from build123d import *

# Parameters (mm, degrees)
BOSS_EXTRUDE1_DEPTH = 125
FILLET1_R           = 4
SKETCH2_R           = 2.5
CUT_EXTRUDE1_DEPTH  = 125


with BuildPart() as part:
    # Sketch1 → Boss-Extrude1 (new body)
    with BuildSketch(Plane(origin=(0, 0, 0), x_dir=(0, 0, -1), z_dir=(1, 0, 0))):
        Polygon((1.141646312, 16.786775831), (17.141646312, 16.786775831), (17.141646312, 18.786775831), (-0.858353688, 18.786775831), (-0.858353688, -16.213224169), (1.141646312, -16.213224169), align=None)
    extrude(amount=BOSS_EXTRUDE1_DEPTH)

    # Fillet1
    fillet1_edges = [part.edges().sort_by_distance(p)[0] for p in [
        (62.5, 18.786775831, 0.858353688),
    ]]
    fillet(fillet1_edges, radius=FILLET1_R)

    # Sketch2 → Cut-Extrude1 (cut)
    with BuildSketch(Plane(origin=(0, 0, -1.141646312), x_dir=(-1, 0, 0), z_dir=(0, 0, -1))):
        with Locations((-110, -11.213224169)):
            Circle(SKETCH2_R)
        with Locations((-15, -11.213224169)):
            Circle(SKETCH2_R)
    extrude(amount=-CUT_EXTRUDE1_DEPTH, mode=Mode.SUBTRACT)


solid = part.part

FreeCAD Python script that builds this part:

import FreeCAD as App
import Part
import Sketcher

V = App.Vector
Q = App.Units.Quantity


def edges_at(feature, points):
    """Names of the edges that pass closest to the given points."""
    edges = feature.Shape.Edges
    near = lambda p: min(range(len(edges)), key=lambda i: edges[i].distToShape(Part.Vertex(*p))[0])
    return sorted({f"Edge{near(p) + 1}" for p in points})

doc = App.newDocument("Part")
body = doc.addObject("PartDesign::Body", "Body")

sketch1 = body.newObject("Sketcher::SketchObject", "Sketch")
sketch1.AttachmentSupport = (doc.getObject("YZ_Plane"), [""])
sketch1.MapMode = "FlatFace"
sketch1.addGeometry(Part.LineSegment(V(16.786776, -1.141646, 0), V(16.786776, -17.141646, 0)), False)
sketch1.addGeometry(Part.LineSegment(V(16.786776, -17.141646, 0), V(18.786776, -17.141646, 0)), False)
sketch1.addGeometry(Part.LineSegment(V(18.786776, -17.141646, 0), V(18.786776, 0.858354, 0)), False)
sketch1.addGeometry(Part.LineSegment(V(18.786776, 0.858354, 0), V(-16.213224, 0.858354, 0)), False)
sketch1.addGeometry(Part.LineSegment(V(-16.213224, 0.858354, 0), V(-16.213224, -1.141646, 0)), False)
sketch1.addGeometry(Part.LineSegment(V(-16.213224, -1.141646, 0), V(16.786776, -1.141646, 0)), False)
sketch1.addConstraint(Sketcher.Constraint("Coincident", 0, 2, 1, 1))
sketch1.addConstraint(Sketcher.Constraint("Coincident", 1, 2, 2, 1))
sketch1.addConstraint(Sketcher.Constraint("Coincident", 2, 2, 3, 1))
sketch1.addConstraint(Sketcher.Constraint("Coincident", 3, 2, 4, 1))
sketch1.addConstraint(Sketcher.Constraint("Coincident", 4, 2, 5, 1))
sketch1.addConstraint(Sketcher.Constraint("Coincident", 5, 2, 0, 1))
sketch1.addConstraint(Sketcher.Constraint("Vertical", 0))
sketch1.addConstraint(Sketcher.Constraint("Horizontal", 1))
sketch1.addConstraint(Sketcher.Constraint("Vertical", 2))
sketch1.addConstraint(Sketcher.Constraint("Horizontal", 3))
sketch1.addConstraint(Sketcher.Constraint("Vertical", 4))
sketch1.addConstraint(Sketcher.Constraint("Horizontal", 5))
sketch1.addConstraint(Sketcher.Constraint("Equal", 1, 4))
sketch1.addConstraint(Sketcher.Constraint("DistanceX", 1, 1, 1, 2, Q("2 mm")))
sketch1.addConstraint(Sketcher.Constraint("DistanceX", 3, 2, 3, 1, Q("35 mm")))
sketch1.addConstraint(Sketcher.Constraint("DistanceY", 0, 2, 0, 1, Q("16 mm")))
sketch1.addConstraint(Sketcher.Constraint("DistanceX", -1, 1, 0, 2, Q("16.786776 mm")))
sketch1.addConstraint(Sketcher.Constraint("DistanceY", 0, 2, -1, 1, Q("17.141646 mm")))
pad1 = body.newObject("PartDesign::Pad", "Pad")
pad1.Profile = sketch1
pad1.Length = 125
doc.recompute()

fillet = body.newObject("PartDesign::Fillet", "Fillet")
fillet.Base = (pad1, edges_at(pad1, [(62.5, 18.787, 0.858)]))
fillet.Radius = 4

sketch2 = body.newObject("Sketcher::SketchObject", "Sketch001")
sketch2.AttachmentSupport = (doc.getObject("XY_Plane"), [""])
sketch2.MapMode = "FlatFace"
sketch2.AttachmentOffset = App.Placement(V(0, 0, -1.141646), App.Rotation())
sketch2.addGeometry(Part.Circle(V(110, -11.213224, 0), V(0, 0, 1), 2.5), False)
sketch2.addGeometry(Part.Circle(V(15, -11.213224, 0), V(0, 0, 1), 2.5), False)
sketch2.addConstraint(Sketcher.Constraint("Equal", 0, 1))
sketch2.addConstraint(Sketcher.Constraint("Horizontal", 0, 3, 1, 3))
sketch2.addConstraint(Sketcher.Constraint("Diameter", 0, Q("5 mm")))
sketch2.addConstraint(Sketcher.Constraint("DistanceX", -1, 1, 0, 3, Q("110 mm")))
sketch2.addConstraint(Sketcher.Constraint("DistanceX", -1, 1, 1, 3, Q("15 mm")))
sketch2.addConstraint(Sketcher.Constraint("DistanceY", 0, 3, -1, 1, Q("11.213224 mm")))
pocket1 = body.newObject("PartDesign::Pocket", "Pocket")
pocket1.Profile = sketch2
pocket1.Length = 125
pocket1.Reversed = True

doc.recompute()
